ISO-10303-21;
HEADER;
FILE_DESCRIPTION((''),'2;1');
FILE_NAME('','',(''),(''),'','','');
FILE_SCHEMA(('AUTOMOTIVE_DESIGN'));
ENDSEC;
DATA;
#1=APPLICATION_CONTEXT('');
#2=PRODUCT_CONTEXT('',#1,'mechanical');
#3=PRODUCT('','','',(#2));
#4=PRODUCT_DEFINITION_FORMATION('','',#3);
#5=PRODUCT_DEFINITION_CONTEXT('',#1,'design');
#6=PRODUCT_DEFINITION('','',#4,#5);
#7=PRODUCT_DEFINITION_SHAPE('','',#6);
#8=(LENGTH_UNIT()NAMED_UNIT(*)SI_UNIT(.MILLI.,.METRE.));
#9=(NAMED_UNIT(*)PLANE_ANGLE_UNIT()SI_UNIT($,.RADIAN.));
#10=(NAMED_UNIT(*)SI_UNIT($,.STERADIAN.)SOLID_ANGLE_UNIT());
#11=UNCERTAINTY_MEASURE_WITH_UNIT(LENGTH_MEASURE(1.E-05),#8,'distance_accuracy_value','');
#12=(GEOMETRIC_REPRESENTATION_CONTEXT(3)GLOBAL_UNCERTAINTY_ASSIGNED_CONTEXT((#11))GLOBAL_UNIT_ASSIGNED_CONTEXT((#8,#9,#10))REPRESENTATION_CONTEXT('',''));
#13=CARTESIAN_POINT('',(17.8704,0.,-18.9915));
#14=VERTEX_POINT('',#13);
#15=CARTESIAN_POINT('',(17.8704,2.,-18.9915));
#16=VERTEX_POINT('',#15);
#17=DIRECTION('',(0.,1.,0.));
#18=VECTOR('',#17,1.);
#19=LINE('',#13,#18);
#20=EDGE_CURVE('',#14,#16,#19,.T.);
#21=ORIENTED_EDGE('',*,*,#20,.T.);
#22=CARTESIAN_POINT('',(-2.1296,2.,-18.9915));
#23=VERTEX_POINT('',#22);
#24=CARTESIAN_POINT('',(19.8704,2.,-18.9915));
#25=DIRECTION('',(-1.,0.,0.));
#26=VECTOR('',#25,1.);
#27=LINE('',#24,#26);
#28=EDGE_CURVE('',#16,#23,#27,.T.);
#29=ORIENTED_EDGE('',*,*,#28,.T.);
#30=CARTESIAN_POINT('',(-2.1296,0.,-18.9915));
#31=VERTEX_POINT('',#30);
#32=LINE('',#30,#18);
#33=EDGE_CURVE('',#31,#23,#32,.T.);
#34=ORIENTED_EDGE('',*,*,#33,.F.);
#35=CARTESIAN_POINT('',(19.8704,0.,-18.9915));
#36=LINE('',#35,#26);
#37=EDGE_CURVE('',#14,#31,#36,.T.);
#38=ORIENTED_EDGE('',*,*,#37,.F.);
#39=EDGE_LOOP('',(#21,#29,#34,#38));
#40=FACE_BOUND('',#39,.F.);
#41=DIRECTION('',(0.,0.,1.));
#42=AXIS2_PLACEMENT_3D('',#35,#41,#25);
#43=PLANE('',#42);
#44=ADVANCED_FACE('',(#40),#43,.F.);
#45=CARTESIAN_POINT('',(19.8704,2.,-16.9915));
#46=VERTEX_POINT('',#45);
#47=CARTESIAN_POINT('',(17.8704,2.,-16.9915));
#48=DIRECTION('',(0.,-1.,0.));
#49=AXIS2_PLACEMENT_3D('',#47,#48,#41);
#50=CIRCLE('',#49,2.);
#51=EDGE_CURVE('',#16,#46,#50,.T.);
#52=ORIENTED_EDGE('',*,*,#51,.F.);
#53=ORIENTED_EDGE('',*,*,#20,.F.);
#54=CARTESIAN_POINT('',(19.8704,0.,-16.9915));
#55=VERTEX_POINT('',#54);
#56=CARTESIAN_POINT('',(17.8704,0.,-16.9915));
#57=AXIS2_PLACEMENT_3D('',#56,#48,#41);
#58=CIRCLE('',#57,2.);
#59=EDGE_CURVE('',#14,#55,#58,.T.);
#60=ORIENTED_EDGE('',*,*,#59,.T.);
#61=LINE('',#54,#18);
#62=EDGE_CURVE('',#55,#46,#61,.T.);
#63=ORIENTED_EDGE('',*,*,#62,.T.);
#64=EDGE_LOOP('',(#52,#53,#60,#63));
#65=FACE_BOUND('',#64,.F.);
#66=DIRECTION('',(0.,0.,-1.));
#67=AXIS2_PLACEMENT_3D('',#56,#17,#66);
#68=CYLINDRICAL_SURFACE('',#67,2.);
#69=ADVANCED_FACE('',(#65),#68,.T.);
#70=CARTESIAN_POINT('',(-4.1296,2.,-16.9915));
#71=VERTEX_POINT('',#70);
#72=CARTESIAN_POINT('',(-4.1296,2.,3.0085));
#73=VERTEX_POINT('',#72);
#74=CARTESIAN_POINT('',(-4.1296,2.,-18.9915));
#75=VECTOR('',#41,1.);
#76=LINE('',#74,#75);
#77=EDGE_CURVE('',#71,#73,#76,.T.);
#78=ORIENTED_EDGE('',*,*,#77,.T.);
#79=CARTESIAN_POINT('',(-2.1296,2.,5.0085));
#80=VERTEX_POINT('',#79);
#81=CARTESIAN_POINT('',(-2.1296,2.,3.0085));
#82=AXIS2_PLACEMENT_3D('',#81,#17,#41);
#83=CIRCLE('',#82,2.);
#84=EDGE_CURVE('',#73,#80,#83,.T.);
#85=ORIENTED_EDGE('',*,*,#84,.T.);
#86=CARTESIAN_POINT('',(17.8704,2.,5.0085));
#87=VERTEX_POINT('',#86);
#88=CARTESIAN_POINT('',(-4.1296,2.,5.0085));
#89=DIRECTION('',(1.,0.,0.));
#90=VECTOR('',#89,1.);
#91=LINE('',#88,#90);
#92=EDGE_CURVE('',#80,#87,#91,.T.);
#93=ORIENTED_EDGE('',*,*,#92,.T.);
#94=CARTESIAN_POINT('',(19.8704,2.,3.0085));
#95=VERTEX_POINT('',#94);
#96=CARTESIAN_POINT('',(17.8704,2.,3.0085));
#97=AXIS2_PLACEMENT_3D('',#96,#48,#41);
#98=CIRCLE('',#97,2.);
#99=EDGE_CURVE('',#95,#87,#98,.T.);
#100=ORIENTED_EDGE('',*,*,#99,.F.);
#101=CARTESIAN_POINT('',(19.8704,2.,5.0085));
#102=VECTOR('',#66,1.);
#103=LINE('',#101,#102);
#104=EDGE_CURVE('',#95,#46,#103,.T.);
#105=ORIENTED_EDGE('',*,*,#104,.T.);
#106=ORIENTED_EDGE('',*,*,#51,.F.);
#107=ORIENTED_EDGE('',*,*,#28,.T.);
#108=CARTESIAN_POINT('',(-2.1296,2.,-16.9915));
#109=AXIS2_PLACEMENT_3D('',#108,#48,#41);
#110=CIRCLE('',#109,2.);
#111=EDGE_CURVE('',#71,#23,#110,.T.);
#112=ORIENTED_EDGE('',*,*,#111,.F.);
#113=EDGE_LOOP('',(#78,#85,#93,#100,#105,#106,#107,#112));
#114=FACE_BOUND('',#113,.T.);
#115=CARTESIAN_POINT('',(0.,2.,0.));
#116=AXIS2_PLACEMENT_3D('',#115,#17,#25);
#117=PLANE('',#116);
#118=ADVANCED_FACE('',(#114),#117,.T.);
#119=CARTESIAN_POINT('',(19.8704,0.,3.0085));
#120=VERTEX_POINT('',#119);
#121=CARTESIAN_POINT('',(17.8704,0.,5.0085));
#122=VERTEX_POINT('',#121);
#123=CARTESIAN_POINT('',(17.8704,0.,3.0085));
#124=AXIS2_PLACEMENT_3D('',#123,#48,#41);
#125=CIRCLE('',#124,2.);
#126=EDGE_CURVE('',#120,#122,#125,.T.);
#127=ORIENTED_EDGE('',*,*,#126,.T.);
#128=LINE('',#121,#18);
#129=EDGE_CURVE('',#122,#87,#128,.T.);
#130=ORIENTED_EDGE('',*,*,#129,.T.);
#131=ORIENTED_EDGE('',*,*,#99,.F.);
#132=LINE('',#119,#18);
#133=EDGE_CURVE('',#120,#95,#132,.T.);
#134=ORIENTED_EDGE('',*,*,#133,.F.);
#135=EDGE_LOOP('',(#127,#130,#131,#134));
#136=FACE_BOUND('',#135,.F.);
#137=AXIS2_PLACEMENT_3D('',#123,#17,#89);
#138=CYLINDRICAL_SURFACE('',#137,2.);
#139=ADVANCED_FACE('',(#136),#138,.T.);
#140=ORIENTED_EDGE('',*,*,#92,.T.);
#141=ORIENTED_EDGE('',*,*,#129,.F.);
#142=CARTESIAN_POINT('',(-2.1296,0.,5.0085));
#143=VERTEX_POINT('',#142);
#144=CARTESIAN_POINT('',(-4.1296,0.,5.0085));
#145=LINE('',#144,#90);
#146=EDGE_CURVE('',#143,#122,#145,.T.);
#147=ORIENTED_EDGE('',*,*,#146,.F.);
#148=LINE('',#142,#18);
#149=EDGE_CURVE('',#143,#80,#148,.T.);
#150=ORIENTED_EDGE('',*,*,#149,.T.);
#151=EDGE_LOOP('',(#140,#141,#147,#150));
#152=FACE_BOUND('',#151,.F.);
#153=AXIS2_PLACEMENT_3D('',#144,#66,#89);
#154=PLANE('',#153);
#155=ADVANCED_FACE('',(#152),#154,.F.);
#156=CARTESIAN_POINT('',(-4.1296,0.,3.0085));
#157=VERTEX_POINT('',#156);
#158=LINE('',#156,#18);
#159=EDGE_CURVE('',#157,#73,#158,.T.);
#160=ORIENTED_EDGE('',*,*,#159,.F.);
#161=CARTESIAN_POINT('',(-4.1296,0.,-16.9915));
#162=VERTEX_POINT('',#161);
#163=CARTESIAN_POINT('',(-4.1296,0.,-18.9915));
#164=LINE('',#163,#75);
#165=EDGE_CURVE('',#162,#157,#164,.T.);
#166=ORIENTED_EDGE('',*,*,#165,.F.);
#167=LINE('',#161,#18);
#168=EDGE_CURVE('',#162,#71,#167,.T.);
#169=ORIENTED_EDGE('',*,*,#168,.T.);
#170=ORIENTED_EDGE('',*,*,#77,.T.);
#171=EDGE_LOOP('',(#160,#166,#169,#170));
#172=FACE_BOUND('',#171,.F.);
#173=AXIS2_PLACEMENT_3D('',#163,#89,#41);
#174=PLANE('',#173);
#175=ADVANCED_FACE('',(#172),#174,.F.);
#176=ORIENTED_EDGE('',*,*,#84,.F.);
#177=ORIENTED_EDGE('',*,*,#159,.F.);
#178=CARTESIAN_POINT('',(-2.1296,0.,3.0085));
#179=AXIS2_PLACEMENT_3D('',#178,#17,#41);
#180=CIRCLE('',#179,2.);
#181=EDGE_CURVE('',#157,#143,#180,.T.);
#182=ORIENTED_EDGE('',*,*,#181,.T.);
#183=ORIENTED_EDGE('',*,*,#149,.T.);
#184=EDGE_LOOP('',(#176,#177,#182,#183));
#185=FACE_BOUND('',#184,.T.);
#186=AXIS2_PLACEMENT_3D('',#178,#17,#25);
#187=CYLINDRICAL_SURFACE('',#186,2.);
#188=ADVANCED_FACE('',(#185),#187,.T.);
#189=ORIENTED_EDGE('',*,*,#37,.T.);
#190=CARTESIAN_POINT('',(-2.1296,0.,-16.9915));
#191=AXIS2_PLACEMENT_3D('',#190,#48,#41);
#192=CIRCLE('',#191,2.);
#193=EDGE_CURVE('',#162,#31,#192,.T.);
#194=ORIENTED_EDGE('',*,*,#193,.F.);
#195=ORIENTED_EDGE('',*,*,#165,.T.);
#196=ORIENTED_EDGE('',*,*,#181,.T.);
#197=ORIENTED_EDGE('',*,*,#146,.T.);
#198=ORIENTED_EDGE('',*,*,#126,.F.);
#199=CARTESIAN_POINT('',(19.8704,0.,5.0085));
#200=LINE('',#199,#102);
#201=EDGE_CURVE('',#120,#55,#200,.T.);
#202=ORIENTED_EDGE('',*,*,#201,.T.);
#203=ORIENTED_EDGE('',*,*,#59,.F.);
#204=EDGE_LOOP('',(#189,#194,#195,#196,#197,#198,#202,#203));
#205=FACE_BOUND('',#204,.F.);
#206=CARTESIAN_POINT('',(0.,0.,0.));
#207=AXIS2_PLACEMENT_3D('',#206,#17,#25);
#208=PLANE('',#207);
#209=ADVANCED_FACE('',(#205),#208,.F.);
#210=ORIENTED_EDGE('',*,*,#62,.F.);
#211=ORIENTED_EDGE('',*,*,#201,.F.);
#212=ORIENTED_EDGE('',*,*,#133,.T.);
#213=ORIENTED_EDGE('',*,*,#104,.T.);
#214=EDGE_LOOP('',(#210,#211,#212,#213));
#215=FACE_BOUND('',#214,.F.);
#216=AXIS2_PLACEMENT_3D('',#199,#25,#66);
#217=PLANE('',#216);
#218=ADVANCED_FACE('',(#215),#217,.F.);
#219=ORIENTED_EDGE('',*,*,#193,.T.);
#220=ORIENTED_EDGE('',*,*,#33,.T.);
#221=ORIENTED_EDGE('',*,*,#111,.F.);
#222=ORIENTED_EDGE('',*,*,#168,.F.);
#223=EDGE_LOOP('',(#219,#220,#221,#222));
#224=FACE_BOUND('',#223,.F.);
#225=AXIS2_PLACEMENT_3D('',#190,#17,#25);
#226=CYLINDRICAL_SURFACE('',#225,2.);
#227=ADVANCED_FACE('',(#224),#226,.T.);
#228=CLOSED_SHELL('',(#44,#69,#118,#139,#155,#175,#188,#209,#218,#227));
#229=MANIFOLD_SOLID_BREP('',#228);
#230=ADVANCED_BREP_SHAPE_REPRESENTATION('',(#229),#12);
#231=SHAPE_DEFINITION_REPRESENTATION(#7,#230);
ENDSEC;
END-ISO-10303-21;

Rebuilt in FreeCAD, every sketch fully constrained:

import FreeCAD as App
import Part
import Sketcher

V = App.Vector


def edges_at(feature, points):
    """Names of the edges that pass closest to the given points."""
    edges = feature.Shape.Edges
    near = lambda p: min(range(len(edges)), key=lambda i: edges[i].distToShape(Part.Vertex(*p))[0])
    return sorted({f"Edge{near(p) + 1}" for p in points})

doc = App.newDocument("Part")
body = doc.addObject("PartDesign::Body", "Body")

sketch1 = body.newObject("Sketcher::SketchObject", "Sketch")
sketch1.AttachmentSupport = (doc.getObject("XZ_Plane"), [""])
sketch1.MapMode = "FlatFace"
sketch1.addGeometry([
    Part.LineSegment(V(-4, -19, 0), V(-4, 5, 0)),
    Part.LineSegment(V(-4, 5, 0), V(20, 5, 0)),
    Part.LineSegment(V(20, 5, 0), V(20, -19, 0)),
    Part.LineSegment(V(20, -19, 0), V(-4, -19, 0)),
], False)
sketch1.addConstraint([
    Sketcher.Constraint("Coincident", 0, 2, 1, 1),
    Sketcher.Constraint("Coincident", 1, 2, 2, 1),
    Sketcher.Constraint("Coincident", 2, 2, 3, 1),
    Sketcher.Constraint("Coincident", 3, 2, 0, 1),
    Sketcher.Constraint("Vertical", 0),
    Sketcher.Constraint("Horizontal", 1),
    Sketcher.Constraint("Vertical", 2),
    Sketcher.Constraint("Horizontal", 3),
    Sketcher.Constraint("Equal", 3, 0),
    Sketcher.Constraint("DistanceX", 1, 1, 1, 2, 24.0),
    Sketcher.Constraint("DistanceX", 0, 2, -1, 1, 4.1296),
    Sketcher.Constraint("DistanceY", -1, 1, 0, 2, 5.0085),
])
pad1 = body.newObject("PartDesign::Pad", "Pad")
pad1.Profile = sketch1
pad1.Length = 2
pad1.Reversed = True
doc.recompute()

fillet = body.newObject("PartDesign::Fillet", "Fillet")
fillet.Base = (pad1, edges_at(pad1, [
    (19.87, 1, 5.008),
    (19.87, 1, -18.991),
    (-4.13, 1, -18.991),
    (-4.13, 1, 5.008),
]))
fillet.Radius = 2

doc.recompute()
